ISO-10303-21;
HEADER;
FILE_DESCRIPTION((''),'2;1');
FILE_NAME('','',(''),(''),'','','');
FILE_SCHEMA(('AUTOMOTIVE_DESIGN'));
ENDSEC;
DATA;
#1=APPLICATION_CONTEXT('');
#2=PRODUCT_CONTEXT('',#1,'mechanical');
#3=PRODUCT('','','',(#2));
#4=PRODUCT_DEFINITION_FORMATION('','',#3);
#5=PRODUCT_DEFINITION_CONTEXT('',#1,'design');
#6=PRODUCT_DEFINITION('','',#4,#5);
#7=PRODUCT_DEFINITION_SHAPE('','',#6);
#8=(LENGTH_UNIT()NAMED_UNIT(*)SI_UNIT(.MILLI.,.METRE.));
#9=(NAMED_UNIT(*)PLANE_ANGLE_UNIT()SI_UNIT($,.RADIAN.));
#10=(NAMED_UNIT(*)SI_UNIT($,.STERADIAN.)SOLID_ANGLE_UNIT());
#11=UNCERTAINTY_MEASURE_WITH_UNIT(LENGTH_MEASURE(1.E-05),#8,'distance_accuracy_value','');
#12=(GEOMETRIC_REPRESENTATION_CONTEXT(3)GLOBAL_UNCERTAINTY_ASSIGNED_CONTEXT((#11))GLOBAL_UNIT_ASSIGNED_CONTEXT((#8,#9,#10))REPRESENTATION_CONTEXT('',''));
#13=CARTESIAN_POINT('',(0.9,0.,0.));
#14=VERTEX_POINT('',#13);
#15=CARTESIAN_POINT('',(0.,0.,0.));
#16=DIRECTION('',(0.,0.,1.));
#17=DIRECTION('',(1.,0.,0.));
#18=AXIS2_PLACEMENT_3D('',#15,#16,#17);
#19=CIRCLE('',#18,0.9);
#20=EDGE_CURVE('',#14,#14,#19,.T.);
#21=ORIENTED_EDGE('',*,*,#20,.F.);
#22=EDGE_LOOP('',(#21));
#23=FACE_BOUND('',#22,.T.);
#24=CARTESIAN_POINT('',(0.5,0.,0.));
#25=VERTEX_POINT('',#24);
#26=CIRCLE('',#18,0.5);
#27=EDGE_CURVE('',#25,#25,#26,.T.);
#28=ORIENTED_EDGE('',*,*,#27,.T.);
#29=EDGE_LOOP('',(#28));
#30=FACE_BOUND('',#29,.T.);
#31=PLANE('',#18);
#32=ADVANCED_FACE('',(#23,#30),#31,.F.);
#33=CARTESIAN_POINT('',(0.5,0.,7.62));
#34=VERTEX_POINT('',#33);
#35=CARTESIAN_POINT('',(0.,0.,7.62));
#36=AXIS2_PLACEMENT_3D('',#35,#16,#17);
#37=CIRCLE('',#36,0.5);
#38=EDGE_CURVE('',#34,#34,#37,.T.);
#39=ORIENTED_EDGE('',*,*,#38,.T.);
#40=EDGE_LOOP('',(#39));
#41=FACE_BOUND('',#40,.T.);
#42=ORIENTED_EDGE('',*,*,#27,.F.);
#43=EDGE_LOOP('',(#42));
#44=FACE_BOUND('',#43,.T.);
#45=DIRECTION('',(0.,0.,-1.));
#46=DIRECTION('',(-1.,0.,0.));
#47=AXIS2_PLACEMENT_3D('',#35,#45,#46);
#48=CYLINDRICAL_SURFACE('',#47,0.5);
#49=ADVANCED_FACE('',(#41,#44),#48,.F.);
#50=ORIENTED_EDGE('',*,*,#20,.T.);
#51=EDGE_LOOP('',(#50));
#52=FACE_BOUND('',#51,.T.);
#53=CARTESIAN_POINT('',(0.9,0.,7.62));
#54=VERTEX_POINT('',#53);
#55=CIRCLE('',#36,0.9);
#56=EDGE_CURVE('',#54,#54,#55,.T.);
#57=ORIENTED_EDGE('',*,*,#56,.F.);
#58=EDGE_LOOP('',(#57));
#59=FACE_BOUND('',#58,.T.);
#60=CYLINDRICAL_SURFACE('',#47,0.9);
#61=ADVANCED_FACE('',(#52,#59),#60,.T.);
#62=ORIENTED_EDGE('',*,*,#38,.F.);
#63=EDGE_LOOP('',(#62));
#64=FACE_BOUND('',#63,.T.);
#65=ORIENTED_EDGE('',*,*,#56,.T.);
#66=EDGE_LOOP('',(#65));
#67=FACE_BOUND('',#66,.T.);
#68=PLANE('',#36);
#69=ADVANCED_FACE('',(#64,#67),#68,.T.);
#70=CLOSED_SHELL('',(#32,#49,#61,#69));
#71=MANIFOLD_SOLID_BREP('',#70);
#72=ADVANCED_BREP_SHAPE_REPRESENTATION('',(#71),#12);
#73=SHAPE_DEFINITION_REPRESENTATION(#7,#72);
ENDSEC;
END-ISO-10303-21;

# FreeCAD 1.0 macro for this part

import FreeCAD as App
import Part
import Sketcher

V = App.Vector
Q = App.Units.Quantity

doc = App.newDocument("Part")
body = doc.addObject("PartDesign::Body", "Body")

# Sketch on XY plane
sketch1 = body.newObject("Sketcher::SketchObject", "Sketch")
sketch1.AttachmentSupport = (doc.getObject("XY_Plane"), [""])
sketch1.MapMode = "FlatFace"
sketch1.addGeometry([
    Part.Circle(V(0, 0, 0), V(0, 0, 1), 0.9),
    Part.Circle(V(0, 0, 0), V(0, 0, 1), 0.5),
], False)
sketch1.addConstraint([
    Sketcher.Constraint("Coincident", 0, 3, -1, 1),
    Sketcher.Constraint("Coincident", 1, 3, -1, 1),
    Sketcher.Constraint("Diameter", 1, Q("1 mm")),
    Sketcher.Constraint("Diameter", 0, Q("1.8 mm")),
])
pad1 = body.newObject("PartDesign::Pad", "Pad")
pad1.Profile = sketch1
pad1.Length = 7.62

doc.recompute()
